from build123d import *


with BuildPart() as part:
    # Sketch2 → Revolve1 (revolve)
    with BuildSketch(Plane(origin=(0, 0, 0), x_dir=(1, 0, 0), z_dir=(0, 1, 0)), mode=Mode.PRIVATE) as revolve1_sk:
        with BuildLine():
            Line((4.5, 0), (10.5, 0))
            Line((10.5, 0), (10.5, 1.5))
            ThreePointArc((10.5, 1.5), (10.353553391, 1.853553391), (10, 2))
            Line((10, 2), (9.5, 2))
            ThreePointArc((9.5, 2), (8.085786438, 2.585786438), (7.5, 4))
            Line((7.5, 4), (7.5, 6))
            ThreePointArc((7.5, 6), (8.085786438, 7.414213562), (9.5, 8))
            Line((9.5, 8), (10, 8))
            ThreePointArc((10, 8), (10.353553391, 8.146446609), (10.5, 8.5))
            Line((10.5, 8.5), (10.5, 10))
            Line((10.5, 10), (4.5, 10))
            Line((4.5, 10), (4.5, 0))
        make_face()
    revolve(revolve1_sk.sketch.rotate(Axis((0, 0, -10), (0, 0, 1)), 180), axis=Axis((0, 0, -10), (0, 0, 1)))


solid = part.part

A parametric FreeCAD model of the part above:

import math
import FreeCAD as App
import Part
import Sketcher
from FreeCAD import Vector

doc = App.newDocument("Part")
body = doc.addObject("PartDesign::Body", "Body")

# Sketch on XZ plane
sketch1 = doc.addObject("Sketcher::SketchObject", "Sketch")
body.addObject(sketch1)
sketch1.AttachmentSupport = (doc.XZ_Plane, [""])
sketch1.MapMode = "FlatFace"
sketch1.addGeometry(Part.LineSegment(Vector(4.5, 0, 0), Vector(10.5, 0, 0)), False)
sketch1.addGeometry(Part.LineSegment(Vector(10.5, 0, 0), Vector(10.5, -1.5, 0)), False)
sketch1.addGeometry(Part.ArcOfCircle(Part.Circle(Vector(10, -1.5, 0), Vector(0, 0, 1), 0.5), math.radians(-90), math.radians(0)), False)
sketch1.addGeometry(Part.LineSegment(Vector(10, -2, 0), Vector(9.5, -2, 0)), False)
sketch1.addGeometry(Part.ArcOfCircle(Part.Circle(Vector(9.5, -4, 0), Vector(0, 0, 1), 2), math.radians(90), math.radians(180)), False)
sketch1.addGeometry(Part.LineSegment(Vector(7.5, -4, 0), Vector(7.5, -6, 0)), False)
sketch1.addGeometry(Part.ArcOfCircle(Part.Circle(Vector(9.5, -6, 0), Vector(0, 0, 1), 2), math.radians(-180), math.radians(-90)), False)
sketch1.addGeometry(Part.LineSegment(Vector(9.5, -8, 0), Vector(10, -8, 0)), False)
sketch1.addGeometry(Part.ArcOfCircle(Part.Circle(Vector(10, -8.5, 0), Vector(0, 0, 1), 0.5), math.radians(0), math.radians(90)), False)
sketch1.addGeometry(Part.LineSegment(Vector(10.5, -8.5, 0), Vector(10.5, -10, 0)), False)
sketch1.addGeometry(Part.LineSegment(Vector(10.5, -10, 0), Vector(4.5, -10, 0)), False)
sketch1.addGeometry(Part.LineSegment(Vector(4.5, -10, 0), Vector(4.5, 0, 0)), False)
sketch1.addConstraint(Sketcher.Constraint("Coincident", 0, 2, 1, 1))
sketch1.addConstraint(Sketcher.Constraint("Tangent", 1, 2, 2, 2))
sketch1.addConstraint(Sketcher.Constraint("Tangent", 2, 1, 3, 1))
sketch1.addConstraint(Sketcher.Constraint("Tangent", 3, 2, 4, 1))
sketch1.addConstraint(Sketcher.Constraint("Tangent", 4, 2, 5, 1))
sketch1.addConstraint(Sketcher.Constraint("Tangent", 5, 2, 6, 1))
sketch1.addConstraint(Sketcher.Constraint("Tangent", 6, 2, 7, 1))
sketch1.addConstraint(Sketcher.Constraint("Tangent", 7, 2, 8, 2))
sketch1.addConstraint(Sketcher.Constraint("Tangent", 8, 1, 9, 1))
sketch1.addConstraint(Sketcher.Constraint("Coincident", 9, 2, 10, 1))
sketch1.addConstraint(Sketcher.Constraint("Coincident", 10, 2, 11, 1))
sketch1.addConstraint(Sketcher.Constraint("Coincident", 11, 2, 0, 1))
sketch1.addConstraint(Sketcher.Constraint("Horizontal", 0))
sketch1.addConstraint(Sketcher.Constraint("Vertical", 1))
sketch1.addConstraint(Sketcher.Constraint("Horizontal", 3))
sketch1.addConstraint(Sketcher.Constraint("Vertical", 5))
sketch1.addConstraint(Sketcher.Constraint("Horizontal", 7))
sketch1.addConstraint(Sketcher.Constraint("Vertical", 9))
sketch1.addConstraint(Sketcher.Constraint("Horizontal", 10))
sketch1.addConstraint(Sketcher.Constraint("Vertical", 11))
sketch1.addConstraint(Sketcher.Constraint("Equal", 4, 6))
sketch1.addConstraint(Sketcher.Constraint("Equal", 2, 8))
sketch1.addConstraint(Sketcher.Constraint("PointOnObject", 0, 2, -1))
sketch1.addConstraint(Sketcher.Constraint("Vertical", 2, 3, 8, 3))
sketch1.addConstraint(Sketcher.Constraint("Equal", 1, 9))
sketch1.addConstraint(Sketcher.Constraint("Radius", 4, 2.0))
sketch1.addConstraint(Sketcher.Constraint("Radius", 2, 0.5))
sketch1.addConstraint(Sketcher.Constraint("DistanceX", 0, 1, 0, 2, 6.0))
sketch1.addConstraint(Sketcher.Constraint("DistanceY", 5, 2, 5, 1, 2.0))
sketch1.addConstraint(Sketcher.Constraint("DistanceY", 11, 1, 11, 2, 10.0))
sketch1.addConstraint(Sketcher.Constraint("DistanceX", 3, 2, 3, 1, 0.5))
sketch1.addConstraint(Sketcher.Constraint("DistanceX", -1, 1, 2, 3, 10.0))
revolution = doc.addObject("PartDesign::Revolution", "Revolution")
body.addObject(revolution)
revolution.Profile = sketch1
revolution.ReferenceAxis = (sketch1, ["V_Axis"])
revolution.Angle = 360

doc.recompute()
